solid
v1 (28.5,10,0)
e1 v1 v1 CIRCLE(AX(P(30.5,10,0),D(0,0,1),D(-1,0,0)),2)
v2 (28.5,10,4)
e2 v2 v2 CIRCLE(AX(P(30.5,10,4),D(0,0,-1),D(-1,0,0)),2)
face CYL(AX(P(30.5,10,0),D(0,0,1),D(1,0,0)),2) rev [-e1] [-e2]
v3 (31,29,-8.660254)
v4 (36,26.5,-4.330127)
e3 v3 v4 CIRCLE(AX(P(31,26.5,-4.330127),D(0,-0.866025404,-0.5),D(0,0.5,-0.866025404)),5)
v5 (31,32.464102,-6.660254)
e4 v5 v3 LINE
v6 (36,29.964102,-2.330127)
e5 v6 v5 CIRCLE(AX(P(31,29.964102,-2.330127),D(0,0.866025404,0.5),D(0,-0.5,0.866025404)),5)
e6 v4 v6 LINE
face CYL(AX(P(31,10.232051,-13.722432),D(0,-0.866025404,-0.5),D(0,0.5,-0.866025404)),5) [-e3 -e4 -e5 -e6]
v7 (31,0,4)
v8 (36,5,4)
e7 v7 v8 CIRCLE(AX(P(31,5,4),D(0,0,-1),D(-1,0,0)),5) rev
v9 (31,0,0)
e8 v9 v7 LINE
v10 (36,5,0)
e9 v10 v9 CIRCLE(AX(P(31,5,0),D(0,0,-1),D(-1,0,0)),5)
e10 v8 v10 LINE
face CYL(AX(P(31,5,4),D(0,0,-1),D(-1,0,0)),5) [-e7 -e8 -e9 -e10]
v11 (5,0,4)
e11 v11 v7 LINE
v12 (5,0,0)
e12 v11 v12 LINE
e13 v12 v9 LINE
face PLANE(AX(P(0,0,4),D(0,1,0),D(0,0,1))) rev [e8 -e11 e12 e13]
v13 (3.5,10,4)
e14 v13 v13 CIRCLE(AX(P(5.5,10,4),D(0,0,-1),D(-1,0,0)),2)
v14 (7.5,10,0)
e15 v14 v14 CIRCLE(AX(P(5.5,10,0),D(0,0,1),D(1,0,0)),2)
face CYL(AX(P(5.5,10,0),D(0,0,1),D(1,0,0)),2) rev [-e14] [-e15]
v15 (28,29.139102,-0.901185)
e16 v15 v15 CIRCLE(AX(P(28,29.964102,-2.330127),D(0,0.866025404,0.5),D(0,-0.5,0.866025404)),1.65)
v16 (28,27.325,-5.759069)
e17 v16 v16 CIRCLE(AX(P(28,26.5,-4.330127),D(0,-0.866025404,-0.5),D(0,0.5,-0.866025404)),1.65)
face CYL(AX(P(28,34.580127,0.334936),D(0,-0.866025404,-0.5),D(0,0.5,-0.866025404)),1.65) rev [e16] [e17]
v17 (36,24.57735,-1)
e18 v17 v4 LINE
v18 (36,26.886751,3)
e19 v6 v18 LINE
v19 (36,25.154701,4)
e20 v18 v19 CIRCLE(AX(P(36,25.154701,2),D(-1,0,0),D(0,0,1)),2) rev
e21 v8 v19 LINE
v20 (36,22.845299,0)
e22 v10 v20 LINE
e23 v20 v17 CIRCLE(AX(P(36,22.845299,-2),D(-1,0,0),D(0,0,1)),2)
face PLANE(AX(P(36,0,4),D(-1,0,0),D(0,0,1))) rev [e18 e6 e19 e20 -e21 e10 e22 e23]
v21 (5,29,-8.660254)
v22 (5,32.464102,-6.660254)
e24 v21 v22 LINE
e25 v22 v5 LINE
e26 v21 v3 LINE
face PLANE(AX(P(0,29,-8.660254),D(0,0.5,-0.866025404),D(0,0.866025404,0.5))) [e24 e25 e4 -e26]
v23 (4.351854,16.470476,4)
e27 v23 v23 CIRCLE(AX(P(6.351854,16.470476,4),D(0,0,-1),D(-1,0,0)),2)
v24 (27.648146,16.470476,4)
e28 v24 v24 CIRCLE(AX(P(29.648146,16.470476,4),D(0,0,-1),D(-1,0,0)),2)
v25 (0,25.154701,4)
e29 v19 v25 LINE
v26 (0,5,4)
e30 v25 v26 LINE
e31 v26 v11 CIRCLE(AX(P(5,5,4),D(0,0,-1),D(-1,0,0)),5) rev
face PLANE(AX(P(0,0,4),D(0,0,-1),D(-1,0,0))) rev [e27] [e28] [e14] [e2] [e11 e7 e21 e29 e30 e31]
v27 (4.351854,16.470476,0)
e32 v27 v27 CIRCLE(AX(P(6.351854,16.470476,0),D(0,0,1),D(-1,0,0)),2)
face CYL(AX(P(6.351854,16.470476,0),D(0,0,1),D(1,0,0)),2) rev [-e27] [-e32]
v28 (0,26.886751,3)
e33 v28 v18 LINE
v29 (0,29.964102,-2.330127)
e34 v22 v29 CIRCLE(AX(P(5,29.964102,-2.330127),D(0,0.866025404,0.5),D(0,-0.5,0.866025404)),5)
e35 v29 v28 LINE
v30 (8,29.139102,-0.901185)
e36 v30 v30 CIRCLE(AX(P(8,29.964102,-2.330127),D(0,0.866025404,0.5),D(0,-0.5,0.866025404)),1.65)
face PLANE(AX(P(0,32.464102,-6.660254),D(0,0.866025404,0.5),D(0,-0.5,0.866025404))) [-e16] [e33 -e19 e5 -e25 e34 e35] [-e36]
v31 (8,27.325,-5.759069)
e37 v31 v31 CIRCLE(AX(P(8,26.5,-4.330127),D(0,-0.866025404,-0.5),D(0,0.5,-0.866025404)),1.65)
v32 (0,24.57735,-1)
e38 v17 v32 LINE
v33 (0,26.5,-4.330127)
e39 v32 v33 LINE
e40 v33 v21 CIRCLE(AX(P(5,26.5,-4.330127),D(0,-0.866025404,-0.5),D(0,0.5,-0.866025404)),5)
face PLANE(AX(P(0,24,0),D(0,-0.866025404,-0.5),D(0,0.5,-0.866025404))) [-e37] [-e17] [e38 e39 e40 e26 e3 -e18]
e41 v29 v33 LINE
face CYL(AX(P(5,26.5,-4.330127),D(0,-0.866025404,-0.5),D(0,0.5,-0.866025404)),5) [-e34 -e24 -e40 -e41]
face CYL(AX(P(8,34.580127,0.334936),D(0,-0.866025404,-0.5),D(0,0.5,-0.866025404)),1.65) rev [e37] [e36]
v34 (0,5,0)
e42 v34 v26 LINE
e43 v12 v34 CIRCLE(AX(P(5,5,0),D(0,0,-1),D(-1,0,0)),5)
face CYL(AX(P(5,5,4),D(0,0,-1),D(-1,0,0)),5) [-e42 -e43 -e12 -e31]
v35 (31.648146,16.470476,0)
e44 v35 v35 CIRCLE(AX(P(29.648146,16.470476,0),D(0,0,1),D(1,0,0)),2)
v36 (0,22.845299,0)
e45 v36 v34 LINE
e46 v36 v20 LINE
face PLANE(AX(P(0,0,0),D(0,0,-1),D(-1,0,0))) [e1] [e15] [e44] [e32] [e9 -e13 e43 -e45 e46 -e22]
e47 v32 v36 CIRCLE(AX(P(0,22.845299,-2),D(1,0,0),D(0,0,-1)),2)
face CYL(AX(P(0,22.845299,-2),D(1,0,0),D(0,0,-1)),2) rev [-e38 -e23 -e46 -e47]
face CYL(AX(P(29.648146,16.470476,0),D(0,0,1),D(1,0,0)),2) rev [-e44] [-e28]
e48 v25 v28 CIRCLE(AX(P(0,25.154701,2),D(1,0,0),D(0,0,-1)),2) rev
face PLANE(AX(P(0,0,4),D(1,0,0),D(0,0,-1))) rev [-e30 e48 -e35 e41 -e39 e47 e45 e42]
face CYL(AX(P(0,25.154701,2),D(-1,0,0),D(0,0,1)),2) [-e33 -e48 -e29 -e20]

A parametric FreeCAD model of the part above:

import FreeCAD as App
import Part
import Sketcher
from FreeCAD import Vector
Q = App.Units.Quantity


def edges_at(feature, points):
    """Names of the edges that pass closest to the given points."""
    edges = feature.Shape.Edges
    near = lambda p: min(range(len(edges)), key=lambda i: edges[i].distToShape(Part.Vertex(*p))[0])
    return sorted({f"Edge{near(p) + 1}" for p in points})


def add_polygon(sketch, points):
    """Adds a closed chain of lines whose ends are joined by coincident constraints."""
    first, n = sketch.GeometryCount, len(points)
    for a, b in zip(points, points[1:] + points[:1]):
        sketch.addGeometry(Part.LineSegment(App.Vector(*a, 0), App.Vector(*b, 0)), False)
    for i in range(n):
        sketch.addConstraint(Sketcher.Constraint("Coincident", first + i, 2, first + (i + 1) % n, 1))

doc = App.newDocument("Part")
body = doc.addObject("PartDesign::Body", "Body")

# Sketch on XY plane
sketch1 = body.newObject("Sketcher::SketchObject", "Sketch")
sketch1.AttachmentSupport = (doc.getObject("XY_Plane"), [""])
sketch1.MapMode = "FlatFace"
add_polygon(sketch1, [(0, 24), (0, 0), (36, 0), (36, 24)])  # lines 0-3
sketch1.addConstraint([
    Sketcher.Constraint("Vertical", 0),
    Sketcher.Constraint("Horizontal", 1),
    Sketcher.Constraint("Vertical", 2),
    Sketcher.Constraint("Horizontal", 3),
    Sketcher.Constraint("Coincident", 0, 2, -1, 1),
    Sketcher.Constraint("DistanceX", 1, 1, 1, 2, 36.0),
    Sketcher.Constraint("DistanceY", 0, 2, 0, 1, 24.0),
])
pad1 = body.newObject("PartDesign::Pad", "Pad")
pad1.Profile = sketch1
pad1.Length = 4

# Sketch on XY plane
sketch2 = body.newObject("Sketcher::SketchObject", "Sketch001")
sketch2.AttachmentSupport = (doc.getObject("XY_Plane"), [""])
sketch2.MapMode = "FlatFace"
sketch2.AttachmentOffset = App.Placement(Vector(0, 0, 4), App.Rotation())
sketch2.addGeometry([
    Part.Circle(Vector(5.5, 10, 0), Vector(0, 0, 1), 2),
    Part.Circle(Vector(30.5, 10, 0), Vector(0, 0, 1), 2),
    Part.Circle(Vector(29.648146, 16.470476, 0), Vector(0, 0, 1), 2),
    Part.Circle(Vector(6.351854, 16.470476, 0), Vector(0, 0, 1), 2),
], False)
sketch2.addConstraint([
    Sketcher.Constraint("Equal", 0, 1),
    Sketcher.Constraint("Equal", 1, 2),
    Sketcher.Constraint("Equal", 2, 3),
    Sketcher.Constraint("Horizontal", 0, 3, 1, 3),
    Sketcher.Constraint("Horizontal", 2, 3, 3, 3),
    Sketcher.Constraint("Diameter", 0, 4.0),
    Sketcher.Constraint("DistanceY", -1, 1, 0, 3, 10.0),
    Sketcher.Constraint("DistanceX", 0, 3, 1, 3, 25.0),
    Sketcher.Constraint("DistanceX", -1, 1, 0, 3, 5.5),
    Sketcher.Constraint("DistanceX", 3, 3, 2, 3, 23.296291),
    Sketcher.Constraint("DistanceX", -1, 1, 2, 3, 29.648146),
    Sketcher.Constraint("DistanceY", -1, 1, 2, 3, 16.470476),
])
pocket1 = body.newObject("PartDesign::Pocket", "Pocket")
pocket1.Profile = sketch2
pocket1.Type = "ThroughAll"
pocket1.Midplane = True

# Sketch on YZ plane
sketch3 = body.newObject("Sketcher::SketchObject", "Sketch002")
sketch3.AttachmentSupport = (doc.getObject("YZ_Plane"), [""])
sketch3.MapMode = "FlatFace"
sketch3.AttachmentOffset = App.Placement(Vector(0, 0, 36), App.Rotation())
add_polygon(sketch3, [(24, 0), (29, -8.660254), (32.464102, -6.660254), (26.309401, 4), (24, 4)])  # lines 0-4
sketch3.addConstraint([
    Sketcher.Constraint("Horizontal", 3),
    Sketcher.Constraint("Vertical", 4),
    Sketcher.Constraint("PointOnObject", 4, 2, -1),
    Sketcher.Constraint("Perpendicular", 0, 1),
    Sketcher.Constraint("Perpendicular", 1, 2),
    Sketcher.Constraint("DistanceY", 4, 2, 4, 1, 4.0),
    Sketcher.Constraint("Angle", 0, Q("-60 deg")),
    Sketcher.Constraint("Distance", 0, 10.0),
    Sketcher.Constraint("Distance", 1, 4.0),
    Sketcher.Constraint("DistanceX", -1, 1, 0, 2, 29.0),
])
pad2 = body.newObject("PartDesign::Pad", "Pad001")
pad2.Profile = sketch3
pad2.Length = 36
pad2.Reversed = True

# Sketch on an angled plane
sketch4 = body.newObject("Sketcher::SketchObject", "Sketch003")
sketch4.Placement = App.Placement(Vector(0, 18, 10.392305), App.Rotation(Vector(1, 0, 0), Vector(0, -0.5, 0.866025404), Vector(0, -0.866025404, -0.5), "ZXY"))
sketch4.addGeometry([
    Part.Circle(Vector(8, -17, 0), Vector(0, 0, 1), 1.65),
    Part.Circle(Vector(28, -17, 0), Vector(0, 0, 1), 1.65),
], False)
sketch4.addConstraint([
    Sketcher.Constraint("Equal", 0, 1),
    Sketcher.Constraint("Horizontal", 0, 3, 1, 3),
    Sketcher.Constraint("Diameter", 0, 3.3),
    Sketcher.Constraint("DistanceX", -1, 1, 0, 3, 8.0),
    Sketcher.Constraint("DistanceY", 0, 3, -1, 1, 17.0),
    Sketcher.Constraint("DistanceX", -1, 1, 1, 3, 28.0),
])
pocket2 = body.newObject("PartDesign::Pocket", "Pocket001")
pocket2.Profile = sketch4
pocket2.Type = "ThroughAll"
pocket2.Midplane = True
doc.recompute()

fillet = body.newObject("PartDesign::Fillet", "Fillet")
fillet.Base = (pocket2, edges_at(pocket2, [
    (0, 30.732, -7.66),
    (36, 30.732, -7.66),
    (36, 0, 2),
    (0, 0, 2),
]))
fillet.Radius = 5
doc.recompute()

fillet2 = body.newObject("PartDesign::Fillet", "Fillet001")
fillet2.Base = (fillet, edges_at(fillet, [(18, 26.309, 4), (18, 24, 0)]))
fillet2.Radius = 2

doc.recompute()
